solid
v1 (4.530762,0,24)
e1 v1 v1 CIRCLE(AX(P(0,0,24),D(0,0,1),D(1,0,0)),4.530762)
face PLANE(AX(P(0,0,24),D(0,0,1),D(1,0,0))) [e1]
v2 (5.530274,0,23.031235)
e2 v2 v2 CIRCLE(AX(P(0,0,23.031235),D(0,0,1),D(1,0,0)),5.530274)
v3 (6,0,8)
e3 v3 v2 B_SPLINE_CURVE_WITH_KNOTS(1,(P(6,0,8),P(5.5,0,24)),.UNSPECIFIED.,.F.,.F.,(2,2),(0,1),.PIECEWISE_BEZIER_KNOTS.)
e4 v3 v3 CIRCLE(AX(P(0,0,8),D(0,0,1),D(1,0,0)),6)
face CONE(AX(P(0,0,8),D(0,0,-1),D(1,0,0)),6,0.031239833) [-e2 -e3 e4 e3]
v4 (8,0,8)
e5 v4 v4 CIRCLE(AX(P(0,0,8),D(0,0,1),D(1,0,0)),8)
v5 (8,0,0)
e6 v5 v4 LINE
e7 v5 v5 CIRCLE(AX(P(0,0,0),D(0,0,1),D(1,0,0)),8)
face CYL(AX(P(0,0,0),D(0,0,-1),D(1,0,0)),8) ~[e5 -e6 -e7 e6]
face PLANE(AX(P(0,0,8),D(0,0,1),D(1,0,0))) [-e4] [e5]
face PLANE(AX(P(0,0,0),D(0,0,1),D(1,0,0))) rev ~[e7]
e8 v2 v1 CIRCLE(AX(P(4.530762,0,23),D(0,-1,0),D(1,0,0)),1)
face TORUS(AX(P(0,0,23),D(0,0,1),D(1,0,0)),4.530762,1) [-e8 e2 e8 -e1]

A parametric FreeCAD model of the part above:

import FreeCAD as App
import Part
import Sketcher

V = App.Vector
Q = App.Units.Quantity


def edges_at(feature, points):
    """Names of the edges that pass closest to the given points."""
    edges = feature.Shape.Edges
    near = lambda p: min(range(len(edges)), key=lambda i: edges[i].distToShape(Part.Vertex(*p))[0])
    return sorted({f"Edge{near(p) + 1}" for p in points})

doc = App.newDocument("Part")
params = doc.addObject("Spreadsheet::Sheet", "Params")
for row, (alias, value) in enumerate([
    ("sketch1_diameter", "16 mm"),
    ("pad1_length", "8 mm"),
    ("sketch2_diameter", "12 mm"),
    ("sketch3_diameter", "11 mm"),
    ("fillet_radius", "1 mm"),
], start=1):
    params.set(f"A{row}", alias)
    params.set(f"B{row}", "=" + value)
    params.setAlias(f"B{row}", alias)

body = doc.addObject("PartDesign::Body", "Body")

sketch1 = body.newObject("Sketcher::SketchObject", "Sketch")
sketch1.AttachmentSupport = (doc.getObject("XY_Plane"), [""])
sketch1.MapMode = "FlatFace"
sketch1.addGeometry(Part.Circle(V(0, 0, 0), V(0, 0, 1), 8), False)
sketch1.addConstraint(Sketcher.Constraint("Coincident", 0, 3, -1, 1))
sketch1.addConstraint(Sketcher.Constraint("Diameter", 0, Q("16 mm")))
sketch1.setExpression("Constraints[1]", "Params.sketch1_diameter")
pad1 = body.newObject("PartDesign::Pad", "Pad")
pad1.Profile = sketch1
pad1.setExpression("Length", "Params.pad1_length")

sketch2 = body.newObject("Sketcher::SketchObject", "Sketch001")
sketch2.AttachmentSupport = (doc.getObject("XY_Plane"), [""])
sketch2.MapMode = "FlatFace"
sketch2.AttachmentOffset = App.Placement(V(0, 0, 8), App.Rotation())
sketch2.addGeometry(Part.Circle(V(0, 0, 0), V(0, 0, 1), 6), False)
sketch2.addConstraint(Sketcher.Constraint("Coincident", 0, 3, -1, 1))
sketch2.addConstraint(Sketcher.Constraint("Diameter", 0, Q("12 mm")))
sketch2.setExpression("Constraints[1]", "Params.sketch2_diameter")

sketch3 = body.newObject("Sketcher::SketchObject", "Sketch002")
sketch3.AttachmentSupport = (doc.getObject("XY_Plane"), [""])
sketch3.MapMode = "FlatFace"
sketch3.AttachmentOffset = App.Placement(V(0, 0, 24), App.Rotation())
sketch3.addGeometry(Part.Circle(V(0, 0, 0), V(0, 0, 1), 6), False)
sketch3.addConstraint(Sketcher.Constraint("Coincident", 0, 3, -1, 1))
sketch3.addConstraint(Sketcher.Constraint("Diameter", 0, Q("11 mm")))
sketch3.setExpression("Constraints[1]", "Params.sketch3_diameter")

additiveloft = body.newObject("PartDesign::AdditiveLoft", "AdditiveLoft")
additiveloft.Profile = sketch2
additiveloft.Sections = [sketch3]
doc.recompute()

fillet = body.newObject("PartDesign::Fillet", "Fillet")
fillet.Base = (additiveloft, edges_at(additiveloft, [(-5.5, 0, 24)]))
fillet.setExpression("Radius", "Params.fillet_radius")

doc.recompute()
